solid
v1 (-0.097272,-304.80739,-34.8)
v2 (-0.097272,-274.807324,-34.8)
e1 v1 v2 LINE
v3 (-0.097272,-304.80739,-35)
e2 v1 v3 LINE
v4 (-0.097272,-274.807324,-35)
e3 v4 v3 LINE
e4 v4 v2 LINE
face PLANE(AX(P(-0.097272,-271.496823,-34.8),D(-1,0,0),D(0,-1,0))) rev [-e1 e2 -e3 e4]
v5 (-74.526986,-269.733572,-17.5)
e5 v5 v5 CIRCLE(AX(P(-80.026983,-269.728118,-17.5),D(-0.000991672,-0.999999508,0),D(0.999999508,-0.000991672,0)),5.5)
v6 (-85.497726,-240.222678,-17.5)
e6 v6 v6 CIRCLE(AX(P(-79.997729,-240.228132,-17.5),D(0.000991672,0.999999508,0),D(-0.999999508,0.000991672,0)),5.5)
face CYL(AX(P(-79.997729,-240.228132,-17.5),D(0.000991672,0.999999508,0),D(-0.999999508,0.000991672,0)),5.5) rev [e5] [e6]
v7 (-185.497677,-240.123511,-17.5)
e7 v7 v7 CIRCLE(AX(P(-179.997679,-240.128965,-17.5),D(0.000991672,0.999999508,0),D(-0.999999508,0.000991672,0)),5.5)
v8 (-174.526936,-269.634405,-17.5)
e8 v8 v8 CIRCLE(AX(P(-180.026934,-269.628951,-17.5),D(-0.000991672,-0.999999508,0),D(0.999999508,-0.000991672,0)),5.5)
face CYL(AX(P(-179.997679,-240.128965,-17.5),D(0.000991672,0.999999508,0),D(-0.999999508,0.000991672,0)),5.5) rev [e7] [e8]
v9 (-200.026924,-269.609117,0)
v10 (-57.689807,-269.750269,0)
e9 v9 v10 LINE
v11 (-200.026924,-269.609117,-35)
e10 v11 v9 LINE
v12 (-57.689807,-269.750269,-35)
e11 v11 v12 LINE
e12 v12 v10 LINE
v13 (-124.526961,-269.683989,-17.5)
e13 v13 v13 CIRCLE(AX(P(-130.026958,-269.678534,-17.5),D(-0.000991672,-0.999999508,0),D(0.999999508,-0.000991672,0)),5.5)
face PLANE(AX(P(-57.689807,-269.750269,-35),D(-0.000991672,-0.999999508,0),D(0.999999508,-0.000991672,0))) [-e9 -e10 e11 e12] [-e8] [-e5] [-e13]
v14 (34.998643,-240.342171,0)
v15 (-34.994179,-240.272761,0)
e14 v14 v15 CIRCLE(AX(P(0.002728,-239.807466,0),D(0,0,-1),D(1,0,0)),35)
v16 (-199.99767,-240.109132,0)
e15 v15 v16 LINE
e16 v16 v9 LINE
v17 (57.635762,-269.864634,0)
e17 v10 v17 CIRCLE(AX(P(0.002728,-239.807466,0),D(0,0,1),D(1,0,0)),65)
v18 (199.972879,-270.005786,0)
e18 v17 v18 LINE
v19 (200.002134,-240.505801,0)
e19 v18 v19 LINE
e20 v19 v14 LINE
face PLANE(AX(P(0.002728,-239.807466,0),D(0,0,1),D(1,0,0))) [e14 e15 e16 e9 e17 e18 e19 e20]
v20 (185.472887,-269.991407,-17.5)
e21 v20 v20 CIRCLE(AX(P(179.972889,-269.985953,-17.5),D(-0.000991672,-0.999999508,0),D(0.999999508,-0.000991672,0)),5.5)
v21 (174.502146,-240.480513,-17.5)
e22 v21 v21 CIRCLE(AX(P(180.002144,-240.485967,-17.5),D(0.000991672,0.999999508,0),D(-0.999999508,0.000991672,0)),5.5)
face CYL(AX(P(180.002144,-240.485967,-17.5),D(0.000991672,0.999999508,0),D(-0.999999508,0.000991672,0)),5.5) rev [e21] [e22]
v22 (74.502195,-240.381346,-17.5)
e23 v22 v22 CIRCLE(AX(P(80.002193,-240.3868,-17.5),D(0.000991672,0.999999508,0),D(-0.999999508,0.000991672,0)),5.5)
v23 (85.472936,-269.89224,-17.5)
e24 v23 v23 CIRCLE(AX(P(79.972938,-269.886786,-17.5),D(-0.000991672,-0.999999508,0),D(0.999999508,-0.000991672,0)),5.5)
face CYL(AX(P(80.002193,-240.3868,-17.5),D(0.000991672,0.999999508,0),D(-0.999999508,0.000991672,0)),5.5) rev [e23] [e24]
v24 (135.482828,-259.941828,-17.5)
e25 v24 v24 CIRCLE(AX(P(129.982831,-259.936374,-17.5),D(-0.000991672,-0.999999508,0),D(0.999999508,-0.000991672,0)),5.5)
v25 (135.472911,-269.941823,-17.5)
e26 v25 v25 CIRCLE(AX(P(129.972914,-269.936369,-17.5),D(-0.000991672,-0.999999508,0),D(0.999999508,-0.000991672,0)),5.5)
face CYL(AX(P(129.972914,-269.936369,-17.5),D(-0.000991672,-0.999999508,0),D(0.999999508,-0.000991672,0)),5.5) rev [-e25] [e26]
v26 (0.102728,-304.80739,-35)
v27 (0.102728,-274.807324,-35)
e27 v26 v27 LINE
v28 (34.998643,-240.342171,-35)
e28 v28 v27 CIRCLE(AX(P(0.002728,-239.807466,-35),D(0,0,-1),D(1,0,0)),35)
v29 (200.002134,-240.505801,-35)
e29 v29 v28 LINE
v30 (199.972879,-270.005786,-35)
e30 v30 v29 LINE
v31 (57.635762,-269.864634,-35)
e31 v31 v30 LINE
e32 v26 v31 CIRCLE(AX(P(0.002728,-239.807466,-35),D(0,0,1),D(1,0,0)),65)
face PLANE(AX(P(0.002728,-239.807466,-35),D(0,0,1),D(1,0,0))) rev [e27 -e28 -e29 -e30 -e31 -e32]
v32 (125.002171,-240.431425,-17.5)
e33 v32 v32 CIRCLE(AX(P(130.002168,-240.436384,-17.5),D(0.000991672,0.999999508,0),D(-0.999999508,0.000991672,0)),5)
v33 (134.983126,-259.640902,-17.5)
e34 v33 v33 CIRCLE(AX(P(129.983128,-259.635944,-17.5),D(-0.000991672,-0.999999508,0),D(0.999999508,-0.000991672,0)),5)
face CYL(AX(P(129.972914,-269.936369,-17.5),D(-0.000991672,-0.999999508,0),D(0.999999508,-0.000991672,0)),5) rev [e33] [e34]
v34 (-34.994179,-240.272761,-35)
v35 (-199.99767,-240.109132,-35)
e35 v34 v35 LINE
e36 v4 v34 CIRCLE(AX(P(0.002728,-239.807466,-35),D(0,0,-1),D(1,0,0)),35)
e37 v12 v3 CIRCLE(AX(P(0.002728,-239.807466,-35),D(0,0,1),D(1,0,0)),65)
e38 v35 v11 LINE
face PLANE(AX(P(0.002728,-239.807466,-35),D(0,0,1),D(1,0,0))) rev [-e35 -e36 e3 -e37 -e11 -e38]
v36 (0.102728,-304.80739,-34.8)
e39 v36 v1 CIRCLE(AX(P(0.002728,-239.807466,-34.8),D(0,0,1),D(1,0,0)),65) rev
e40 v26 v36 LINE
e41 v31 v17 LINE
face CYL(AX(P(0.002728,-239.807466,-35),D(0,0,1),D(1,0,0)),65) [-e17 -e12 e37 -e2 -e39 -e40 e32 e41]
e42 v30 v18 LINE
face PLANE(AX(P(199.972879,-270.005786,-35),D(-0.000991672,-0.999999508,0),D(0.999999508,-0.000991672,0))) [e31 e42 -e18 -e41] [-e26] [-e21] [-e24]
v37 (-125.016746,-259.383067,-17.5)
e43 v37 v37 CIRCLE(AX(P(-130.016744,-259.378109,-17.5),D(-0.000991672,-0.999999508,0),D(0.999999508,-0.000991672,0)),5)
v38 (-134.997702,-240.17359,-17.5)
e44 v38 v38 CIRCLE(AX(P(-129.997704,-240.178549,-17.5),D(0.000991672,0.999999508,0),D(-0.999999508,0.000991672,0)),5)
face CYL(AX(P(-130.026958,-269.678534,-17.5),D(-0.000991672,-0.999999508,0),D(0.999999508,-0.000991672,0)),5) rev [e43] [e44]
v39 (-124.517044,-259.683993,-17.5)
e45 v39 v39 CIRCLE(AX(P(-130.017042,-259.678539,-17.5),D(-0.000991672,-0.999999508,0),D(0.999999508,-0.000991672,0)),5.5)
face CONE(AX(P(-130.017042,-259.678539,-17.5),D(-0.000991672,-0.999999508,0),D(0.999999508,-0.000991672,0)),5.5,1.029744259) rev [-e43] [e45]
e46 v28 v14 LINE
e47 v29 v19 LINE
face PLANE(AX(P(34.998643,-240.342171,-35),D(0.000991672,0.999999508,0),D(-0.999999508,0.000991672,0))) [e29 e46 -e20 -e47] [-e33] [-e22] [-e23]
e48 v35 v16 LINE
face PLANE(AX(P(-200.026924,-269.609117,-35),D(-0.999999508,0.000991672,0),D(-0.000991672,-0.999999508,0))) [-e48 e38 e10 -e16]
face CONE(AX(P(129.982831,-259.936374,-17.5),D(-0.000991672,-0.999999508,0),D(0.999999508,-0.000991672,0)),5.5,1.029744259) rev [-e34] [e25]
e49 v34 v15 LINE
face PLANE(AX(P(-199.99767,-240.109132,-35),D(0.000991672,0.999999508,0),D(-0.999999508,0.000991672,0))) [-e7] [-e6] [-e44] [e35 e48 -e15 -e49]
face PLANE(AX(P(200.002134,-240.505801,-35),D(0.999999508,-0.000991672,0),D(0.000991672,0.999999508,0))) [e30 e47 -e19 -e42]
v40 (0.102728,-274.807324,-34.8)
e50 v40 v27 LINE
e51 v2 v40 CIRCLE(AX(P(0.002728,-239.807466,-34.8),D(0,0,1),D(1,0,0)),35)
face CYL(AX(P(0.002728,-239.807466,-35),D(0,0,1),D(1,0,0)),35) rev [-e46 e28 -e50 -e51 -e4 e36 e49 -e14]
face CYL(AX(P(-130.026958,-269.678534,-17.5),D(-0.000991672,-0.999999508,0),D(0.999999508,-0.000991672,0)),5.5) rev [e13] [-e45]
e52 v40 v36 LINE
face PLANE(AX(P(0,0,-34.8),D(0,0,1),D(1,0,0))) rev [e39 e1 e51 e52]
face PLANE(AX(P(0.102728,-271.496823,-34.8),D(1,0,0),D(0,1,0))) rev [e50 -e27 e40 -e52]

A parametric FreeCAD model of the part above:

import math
import FreeCAD as App
import Part
import Sketcher
from FreeCAD import Vector
Q = App.Units.Quantity


def add_polygon(sketch, points):
    """Adds a closed chain of lines whose ends are joined by coincident constraints."""
    first, n = sketch.GeometryCount, len(points)
    for a, b in zip(points, points[1:] + points[:1]):
        sketch.addGeometry(Part.LineSegment(App.Vector(*a, 0), App.Vector(*b, 0)), False)
    for i in range(n):
        sketch.addConstraint(Sketcher.Constraint("Coincident", first + i, 2, first + (i + 1) % n, 1))

doc = App.newDocument("Part")
params = doc.addObject("Spreadsheet::Sheet", "Params")
for row, (alias, value) in enumerate([
    ("sketch1_radius", "65 mm"),
    ("sketch1_radius2", "35 mm"),
    ("sketch1_length", "29.5 mm"),
    ("sketch1_length2", "29.5 mm"),
    ("pad1_length", "35 mm"),
    ("sketch2_diameter", "11 mm"),
    ("hole_diameter", "11 mm"),
    ("sketch3_diameter", "10 mm"),
    ("hole2_diameter", "10 mm"),
    ("sketch4_diameter", "11 mm"),
    ("hole3_diameter", "11 mm"),
    ("hole3_depth", "10 mm"),
    ("sketch5_width", "0.2 mm"),
    ("pocket1_length", "0.2 mm"),
], start=1):
    params.set(f"A{row}", alias)
    params.set(f"B{row}", "=" + value)
    params.setAlias(f"B{row}", alias)

body = doc.addObject("PartDesign::Body", "Body")

sketch1 = body.newObject("Sketcher::SketchObject", "Sketch")
sketch1.AttachmentSupport = (doc.getObject("XY_Plane"), [""])
sketch1.MapMode = "FlatFace"
sketch1.addGeometry(Part.LineSegment(Vector(-34.994179, -240.272761, 0), Vector(-199.99767, -240.109132, 0)), False)
sketch1.addGeometry(Part.LineSegment(Vector(-199.99767, -240.109132, 0), Vector(-200.026924, -269.609117, 0)), False)
sketch1.addGeometry(Part.LineSegment(Vector(-200.026924, -269.609117, 0), Vector(-57.689807, -269.750269, 0)), False)
sketch1.addGeometry(Part.ArcOfCircle(Part.Circle(Vector(0.002728, -239.807466, 0), Vector(0, 0, 1), 65), math.radians(-152.570392), math.radians(-27.543245)), False)
sketch1.addGeometry(Part.LineSegment(Vector(57.635762, -269.864634, 0), Vector(199.972879, -270.005786, 0)), False)
sketch1.addGeometry(Part.LineSegment(Vector(199.972879, -270.005786, 0), Vector(200.002134, -240.505801, 0)), False)
sketch1.addGeometry(Part.LineSegment(Vector(200.002134, -240.505801, 0), Vector(34.998643, -240.342171, 0)), False)
sketch1.addGeometry(Part.ArcOfCircle(Part.Circle(Vector(0.002728, -239.807466, 0), Vector(0, 0, 1), 35), math.radians(-179.23828), math.radians(-0.875358)), False)
sketch1.addConstraint(Sketcher.Constraint("Coincident", 0, 2, 1, 1))
sketch1.addConstraint(Sketcher.Constraint("Coincident", 1, 2, 2, 1))
sketch1.addConstraint(Sketcher.Constraint("Coincident", 2, 2, 3, 1))
sketch1.addConstraint(Sketcher.Constraint("Coincident", 3, 2, 4, 1))
sketch1.addConstraint(Sketcher.Constraint("Coincident", 4, 2, 5, 1))
sketch1.addConstraint(Sketcher.Constraint("Coincident", 5, 2, 6, 1))
sketch1.addConstraint(Sketcher.Constraint("Coincident", 6, 2, 7, 2))
sketch1.addConstraint(Sketcher.Constraint("Coincident", 7, 1, 0, 1))
sketch1.addConstraint(Sketcher.Constraint("Coincident", 7, 3, 3, 3))
sketch1.addConstraint(Sketcher.Constraint("Radius", 3, Q("65 mm")))
sketch1.addConstraint(Sketcher.Constraint("Radius", 7, Q("35 mm")))
sketch1.addConstraint(Sketcher.Constraint("Distance", 1, Q("29.5 mm")))
sketch1.addConstraint(Sketcher.Constraint("Distance", 5, Q("29.5 mm")))
sketch1.addConstraint(Sketcher.Constraint("DistanceY", 5, 2, -1, 1, Q("240.505801 mm")))
sketch1.addConstraint(Sketcher.Constraint("Distance", 0, Q("165.003572 mm")))
sketch1.addConstraint(Sketcher.Constraint("Distance", 6, Q("165.003572 mm")))
sketch1.addConstraint(Sketcher.Constraint("DistanceX", 0, 2, -1, 1, Q("199.99767 mm")))
sketch1.addConstraint(Sketcher.Constraint("DistanceY", 0, 2, -1, 1, Q("240.109132 mm")))
sketch1.addConstraint(Sketcher.Constraint("DistanceY", 2, 2, -1, 1, Q("269.750269 mm")))
sketch1.addConstraint(Sketcher.Constraint("DistanceX", -1, 1, 4, 2, Q("199.972879 mm")))
sketch1.addConstraint(Sketcher.Constraint("DistanceY", 6, 2, -1, 1, Q("240.342171 mm")))
sketch1.addConstraint(Sketcher.Constraint("DistanceY", 7, 1, -1, 1, Q("240.272761 mm")))
sketch1.addConstraint(Sketcher.Constraint("DistanceX", 1, 2, 7, 3, Q("200.029652 mm")))
sketch1.addConstraint(Sketcher.Constraint("DistanceY", 1, 2, 7, 3, Q("29.801651 mm")))
sketch1.addConstraint(Sketcher.Constraint("DistanceX", 2, 2, 3, 2, Q("115.325569 mm")))
sketch1.setExpression("Constraints[9]", "Params.sketch1_radius")
sketch1.setExpression("Constraints[10]", "Params.sketch1_radius2")
sketch1.setExpression("Constraints[11]", "Params.sketch1_length")
sketch1.setExpression("Constraints[12]", "Params.sketch1_length2")
pad1 = body.newObject("PartDesign::Pad", "Pad")
pad1.Profile = sketch1
pad1.setExpression("Length", "Params.pad1_length")
pad1.Reversed = True

sketch2 = body.newObject("Sketcher::SketchObject", "Sketch001")
sketch2.Placement = App.Placement(Vector(-0.238306, -240.307228, 0), App.Rotation(Vector(0.999999508, -0.000991672, 0), Vector(0, 0, -0.999999999), Vector(0.000991672, 0.999999508, 0), "ZXY"))
sketch2.addGeometry(Part.Circle(Vector(-180, 17, 0), Vector(0, 0, 1), 6), False)
sketch2.addGeometry(Part.Circle(Vector(-80, 17, 0), Vector(0, 0, 1), 6), False)
sketch2.addGeometry(Part.Circle(Vector(80, 17, 0), Vector(0, 0, 1), 6), False)
sketch2.addGeometry(Part.Circle(Vector(180, 17, 0), Vector(0, 0, 1), 6), False)
sketch2.addConstraint(Sketcher.Constraint("Equal", 0, 1))
sketch2.addConstraint(Sketcher.Constraint("Equal", 1, 2))
sketch2.addConstraint(Sketcher.Constraint("Equal", 2, 3))
sketch2.addConstraint(Sketcher.Constraint("Horizontal", 0, 3, 1, 3))
sketch2.addConstraint(Sketcher.Constraint("Horizontal", 1, 3, 2, 3))
sketch2.addConstraint(Sketcher.Constraint("Horizontal", 2, 3, 3, 3))
sketch2.addConstraint(Sketcher.Constraint("Diameter", 0, Q("11 mm")))
sketch2.addConstraint(Sketcher.Constraint("DistanceX", 0, 3, 1, 3, Q("100 mm")))
sketch2.addConstraint(Sketcher.Constraint("DistanceX", 1, 3, 2, 3, Q("160 mm")))
sketch2.addConstraint(Sketcher.Constraint("DistanceX", 2, 3, 3, 3, Q("100 mm")))
sketch2.addConstraint(Sketcher.Constraint("DistanceY", -1, 1, 0, 3, Q("17.5 mm")))
sketch2.addConstraint(Sketcher.Constraint("DistanceX", 0, 3, -1, 1, Q("179.759462 mm")))
sketch2.setExpression("Constraints[6]", "Params.sketch2_diameter")
doc.recompute()
hole = body.newObject("PartDesign::Hole", "Hole")
hole.Profile = sketch2
hole.ThreadType = "None"
hole.setExpression("Diameter", "Params.hole_diameter")
hole.DepthType = "ThroughAll"

sketch3 = body.newObject("Sketcher::SketchObject", "Sketch002")
sketch3.Placement = App.Placement(Vector(-0.26756, -269.807213, 0), App.Rotation(Vector(-0.999999508, 0.000991672, 0), Vector(0, 0, -0.999999999), Vector(-0.000991672, -0.999999508, 0), "ZXY"))
sketch3.addGeometry(Part.Circle(Vector(130, 17, 0), Vector(0, 0, 1), 5), False)
sketch3.addGeometry(Part.Circle(Vector(-130, 17, 0), Vector(0, 0, 1), 5), False)
sketch3.addGeometry(Part.Circle(Vector(-221, -155, 0), Vector(0, 0, 1), 5), False)
sketch3.addConstraint(Sketcher.Constraint("Equal", 0, 1))
sketch3.addConstraint(Sketcher.Constraint("Equal", 1, 2))
sketch3.addConstraint(Sketcher.Constraint("Horizontal", 0, 3, 1, 3))
sketch3.addConstraint(Sketcher.Constraint("Diameter", 0, Q("10 mm")))
sketch3.addConstraint(Sketcher.Constraint("DistanceX", 1, 3, 0, 3, Q("260 mm")))
sketch3.addConstraint(Sketcher.Constraint("DistanceY", -1, 1, 0, 3, Q("17.5 mm")))
sketch3.addConstraint(Sketcher.Constraint("DistanceX", -1, 1, 0, 3, Q("129.759462 mm")))
sketch3.addConstraint(Sketcher.Constraint("DistanceY", 2, 3, -1, 1, Q("155.41838 mm")))
sketch3.addConstraint(Sketcher.Constraint("DistanceX", 2, 3, -1, 1, Q("221.181262 mm")))
sketch3.setExpression("Constraints[3]", "Params.sketch3_diameter")
doc.recompute()
hole2 = body.newObject("PartDesign::Hole", "Hole001")
hole2.Profile = sketch3
hole2.ThreadType = "None"
hole2.setExpression("Diameter", "Params.hole2_diameter")
hole2.DepthType = "ThroughAll"

sketch4 = body.newObject("Sketcher::SketchObject", "Sketch003")
sketch4.Placement = App.Placement(Vector(-0.26756, -269.807213, 0), App.Rotation(Vector(-0.999999508, 0.000991672, 0), Vector(0, 0, -0.999999999), Vector(-0.000991672, -0.999999508, 0), "ZXY"))
sketch4.addGeometry(Part.Circle(Vector(130, 17, 0), Vector(0, 0, 1), 6), False)
sketch4.addGeometry(Part.Circle(Vector(-130, 17, 0), Vector(0, 0, 1), 6), False)
sketch4.addConstraint(Sketcher.Constraint("Equal", 0, 1))
sketch4.addConstraint(Sketcher.Constraint("Horizontal", 0, 3, 1, 3))
sketch4.addConstraint(Sketcher.Constraint("Diameter", 0, Q("11 mm")))
sketch4.addConstraint(Sketcher.Constraint("DistanceX", 1, 3, 0, 3, Q("260 mm")))
sketch4.addConstraint(Sketcher.Constraint("DistanceY", -1, 1, 0, 3, Q("17.5 mm")))
sketch4.addConstraint(Sketcher.Constraint("DistanceX", -1, 1, 0, 3, Q("129.759462 mm")))
sketch4.setExpression("Constraints[2]", "Params.sketch4_diameter")
doc.recompute()
hole3 = body.newObject("PartDesign::Hole", "Hole002")
hole3.Profile = sketch4
hole3.ThreadType = "None"
hole3.setExpression("Diameter", "Params.hole3_diameter")
hole3.DepthType = "Dimension"
hole3.setExpression("Depth", "Params.hole3_depth")
hole3.DrillPoint = "Angled"
hole3.DrillPointAngle = 118

sketch5 = body.newObject("Sketcher::SketchObject", "Sketch004")
sketch5.AttachmentSupport = (doc.getObject("XY_Plane"), [""])
sketch5.MapMode = "FlatFace"
sketch5.AttachmentOffset = App.Placement(Vector(0, 0, -35), App.Rotation())
add_polygon(sketch5, [(0.1, -271.5), (0.1, -308.1), (-0.1, -308.1), (-0.1, -271.5)])
sketch5.addConstraint(Sketcher.Constraint("Vertical", 0))
sketch5.addConstraint(Sketcher.Constraint("Horizontal", 1))
sketch5.addConstraint(Sketcher.Constraint("Vertical", 2))
sketch5.addConstraint(Sketcher.Constraint("Horizontal", 3))
sketch5.addConstraint(Sketcher.Constraint("DistanceX", 1, 2, 1, 1, Q("0.2 mm")))
sketch5.addConstraint(Sketcher.Constraint("DistanceY", 0, 2, 0, 1, Q("36.606459 mm")))
sketch5.addConstraint(Sketcher.Constraint("DistanceY", 0, 2, -1, 1, Q("308.103281 mm")))
sketch5.addConstraint(Sketcher.Constraint("DistanceX", -1, 1, 0, 2, Q("0.102728 mm")))
sketch5.setExpression("Constraints[8]", "Params.sketch5_width")
pocket1 = body.newObject("PartDesign::Pocket", "Pocket")
pocket1.Profile = sketch5
pocket1.setExpression("Length", "Params.pocket1_length")
pocket1.Reversed = True

doc.recompute()
